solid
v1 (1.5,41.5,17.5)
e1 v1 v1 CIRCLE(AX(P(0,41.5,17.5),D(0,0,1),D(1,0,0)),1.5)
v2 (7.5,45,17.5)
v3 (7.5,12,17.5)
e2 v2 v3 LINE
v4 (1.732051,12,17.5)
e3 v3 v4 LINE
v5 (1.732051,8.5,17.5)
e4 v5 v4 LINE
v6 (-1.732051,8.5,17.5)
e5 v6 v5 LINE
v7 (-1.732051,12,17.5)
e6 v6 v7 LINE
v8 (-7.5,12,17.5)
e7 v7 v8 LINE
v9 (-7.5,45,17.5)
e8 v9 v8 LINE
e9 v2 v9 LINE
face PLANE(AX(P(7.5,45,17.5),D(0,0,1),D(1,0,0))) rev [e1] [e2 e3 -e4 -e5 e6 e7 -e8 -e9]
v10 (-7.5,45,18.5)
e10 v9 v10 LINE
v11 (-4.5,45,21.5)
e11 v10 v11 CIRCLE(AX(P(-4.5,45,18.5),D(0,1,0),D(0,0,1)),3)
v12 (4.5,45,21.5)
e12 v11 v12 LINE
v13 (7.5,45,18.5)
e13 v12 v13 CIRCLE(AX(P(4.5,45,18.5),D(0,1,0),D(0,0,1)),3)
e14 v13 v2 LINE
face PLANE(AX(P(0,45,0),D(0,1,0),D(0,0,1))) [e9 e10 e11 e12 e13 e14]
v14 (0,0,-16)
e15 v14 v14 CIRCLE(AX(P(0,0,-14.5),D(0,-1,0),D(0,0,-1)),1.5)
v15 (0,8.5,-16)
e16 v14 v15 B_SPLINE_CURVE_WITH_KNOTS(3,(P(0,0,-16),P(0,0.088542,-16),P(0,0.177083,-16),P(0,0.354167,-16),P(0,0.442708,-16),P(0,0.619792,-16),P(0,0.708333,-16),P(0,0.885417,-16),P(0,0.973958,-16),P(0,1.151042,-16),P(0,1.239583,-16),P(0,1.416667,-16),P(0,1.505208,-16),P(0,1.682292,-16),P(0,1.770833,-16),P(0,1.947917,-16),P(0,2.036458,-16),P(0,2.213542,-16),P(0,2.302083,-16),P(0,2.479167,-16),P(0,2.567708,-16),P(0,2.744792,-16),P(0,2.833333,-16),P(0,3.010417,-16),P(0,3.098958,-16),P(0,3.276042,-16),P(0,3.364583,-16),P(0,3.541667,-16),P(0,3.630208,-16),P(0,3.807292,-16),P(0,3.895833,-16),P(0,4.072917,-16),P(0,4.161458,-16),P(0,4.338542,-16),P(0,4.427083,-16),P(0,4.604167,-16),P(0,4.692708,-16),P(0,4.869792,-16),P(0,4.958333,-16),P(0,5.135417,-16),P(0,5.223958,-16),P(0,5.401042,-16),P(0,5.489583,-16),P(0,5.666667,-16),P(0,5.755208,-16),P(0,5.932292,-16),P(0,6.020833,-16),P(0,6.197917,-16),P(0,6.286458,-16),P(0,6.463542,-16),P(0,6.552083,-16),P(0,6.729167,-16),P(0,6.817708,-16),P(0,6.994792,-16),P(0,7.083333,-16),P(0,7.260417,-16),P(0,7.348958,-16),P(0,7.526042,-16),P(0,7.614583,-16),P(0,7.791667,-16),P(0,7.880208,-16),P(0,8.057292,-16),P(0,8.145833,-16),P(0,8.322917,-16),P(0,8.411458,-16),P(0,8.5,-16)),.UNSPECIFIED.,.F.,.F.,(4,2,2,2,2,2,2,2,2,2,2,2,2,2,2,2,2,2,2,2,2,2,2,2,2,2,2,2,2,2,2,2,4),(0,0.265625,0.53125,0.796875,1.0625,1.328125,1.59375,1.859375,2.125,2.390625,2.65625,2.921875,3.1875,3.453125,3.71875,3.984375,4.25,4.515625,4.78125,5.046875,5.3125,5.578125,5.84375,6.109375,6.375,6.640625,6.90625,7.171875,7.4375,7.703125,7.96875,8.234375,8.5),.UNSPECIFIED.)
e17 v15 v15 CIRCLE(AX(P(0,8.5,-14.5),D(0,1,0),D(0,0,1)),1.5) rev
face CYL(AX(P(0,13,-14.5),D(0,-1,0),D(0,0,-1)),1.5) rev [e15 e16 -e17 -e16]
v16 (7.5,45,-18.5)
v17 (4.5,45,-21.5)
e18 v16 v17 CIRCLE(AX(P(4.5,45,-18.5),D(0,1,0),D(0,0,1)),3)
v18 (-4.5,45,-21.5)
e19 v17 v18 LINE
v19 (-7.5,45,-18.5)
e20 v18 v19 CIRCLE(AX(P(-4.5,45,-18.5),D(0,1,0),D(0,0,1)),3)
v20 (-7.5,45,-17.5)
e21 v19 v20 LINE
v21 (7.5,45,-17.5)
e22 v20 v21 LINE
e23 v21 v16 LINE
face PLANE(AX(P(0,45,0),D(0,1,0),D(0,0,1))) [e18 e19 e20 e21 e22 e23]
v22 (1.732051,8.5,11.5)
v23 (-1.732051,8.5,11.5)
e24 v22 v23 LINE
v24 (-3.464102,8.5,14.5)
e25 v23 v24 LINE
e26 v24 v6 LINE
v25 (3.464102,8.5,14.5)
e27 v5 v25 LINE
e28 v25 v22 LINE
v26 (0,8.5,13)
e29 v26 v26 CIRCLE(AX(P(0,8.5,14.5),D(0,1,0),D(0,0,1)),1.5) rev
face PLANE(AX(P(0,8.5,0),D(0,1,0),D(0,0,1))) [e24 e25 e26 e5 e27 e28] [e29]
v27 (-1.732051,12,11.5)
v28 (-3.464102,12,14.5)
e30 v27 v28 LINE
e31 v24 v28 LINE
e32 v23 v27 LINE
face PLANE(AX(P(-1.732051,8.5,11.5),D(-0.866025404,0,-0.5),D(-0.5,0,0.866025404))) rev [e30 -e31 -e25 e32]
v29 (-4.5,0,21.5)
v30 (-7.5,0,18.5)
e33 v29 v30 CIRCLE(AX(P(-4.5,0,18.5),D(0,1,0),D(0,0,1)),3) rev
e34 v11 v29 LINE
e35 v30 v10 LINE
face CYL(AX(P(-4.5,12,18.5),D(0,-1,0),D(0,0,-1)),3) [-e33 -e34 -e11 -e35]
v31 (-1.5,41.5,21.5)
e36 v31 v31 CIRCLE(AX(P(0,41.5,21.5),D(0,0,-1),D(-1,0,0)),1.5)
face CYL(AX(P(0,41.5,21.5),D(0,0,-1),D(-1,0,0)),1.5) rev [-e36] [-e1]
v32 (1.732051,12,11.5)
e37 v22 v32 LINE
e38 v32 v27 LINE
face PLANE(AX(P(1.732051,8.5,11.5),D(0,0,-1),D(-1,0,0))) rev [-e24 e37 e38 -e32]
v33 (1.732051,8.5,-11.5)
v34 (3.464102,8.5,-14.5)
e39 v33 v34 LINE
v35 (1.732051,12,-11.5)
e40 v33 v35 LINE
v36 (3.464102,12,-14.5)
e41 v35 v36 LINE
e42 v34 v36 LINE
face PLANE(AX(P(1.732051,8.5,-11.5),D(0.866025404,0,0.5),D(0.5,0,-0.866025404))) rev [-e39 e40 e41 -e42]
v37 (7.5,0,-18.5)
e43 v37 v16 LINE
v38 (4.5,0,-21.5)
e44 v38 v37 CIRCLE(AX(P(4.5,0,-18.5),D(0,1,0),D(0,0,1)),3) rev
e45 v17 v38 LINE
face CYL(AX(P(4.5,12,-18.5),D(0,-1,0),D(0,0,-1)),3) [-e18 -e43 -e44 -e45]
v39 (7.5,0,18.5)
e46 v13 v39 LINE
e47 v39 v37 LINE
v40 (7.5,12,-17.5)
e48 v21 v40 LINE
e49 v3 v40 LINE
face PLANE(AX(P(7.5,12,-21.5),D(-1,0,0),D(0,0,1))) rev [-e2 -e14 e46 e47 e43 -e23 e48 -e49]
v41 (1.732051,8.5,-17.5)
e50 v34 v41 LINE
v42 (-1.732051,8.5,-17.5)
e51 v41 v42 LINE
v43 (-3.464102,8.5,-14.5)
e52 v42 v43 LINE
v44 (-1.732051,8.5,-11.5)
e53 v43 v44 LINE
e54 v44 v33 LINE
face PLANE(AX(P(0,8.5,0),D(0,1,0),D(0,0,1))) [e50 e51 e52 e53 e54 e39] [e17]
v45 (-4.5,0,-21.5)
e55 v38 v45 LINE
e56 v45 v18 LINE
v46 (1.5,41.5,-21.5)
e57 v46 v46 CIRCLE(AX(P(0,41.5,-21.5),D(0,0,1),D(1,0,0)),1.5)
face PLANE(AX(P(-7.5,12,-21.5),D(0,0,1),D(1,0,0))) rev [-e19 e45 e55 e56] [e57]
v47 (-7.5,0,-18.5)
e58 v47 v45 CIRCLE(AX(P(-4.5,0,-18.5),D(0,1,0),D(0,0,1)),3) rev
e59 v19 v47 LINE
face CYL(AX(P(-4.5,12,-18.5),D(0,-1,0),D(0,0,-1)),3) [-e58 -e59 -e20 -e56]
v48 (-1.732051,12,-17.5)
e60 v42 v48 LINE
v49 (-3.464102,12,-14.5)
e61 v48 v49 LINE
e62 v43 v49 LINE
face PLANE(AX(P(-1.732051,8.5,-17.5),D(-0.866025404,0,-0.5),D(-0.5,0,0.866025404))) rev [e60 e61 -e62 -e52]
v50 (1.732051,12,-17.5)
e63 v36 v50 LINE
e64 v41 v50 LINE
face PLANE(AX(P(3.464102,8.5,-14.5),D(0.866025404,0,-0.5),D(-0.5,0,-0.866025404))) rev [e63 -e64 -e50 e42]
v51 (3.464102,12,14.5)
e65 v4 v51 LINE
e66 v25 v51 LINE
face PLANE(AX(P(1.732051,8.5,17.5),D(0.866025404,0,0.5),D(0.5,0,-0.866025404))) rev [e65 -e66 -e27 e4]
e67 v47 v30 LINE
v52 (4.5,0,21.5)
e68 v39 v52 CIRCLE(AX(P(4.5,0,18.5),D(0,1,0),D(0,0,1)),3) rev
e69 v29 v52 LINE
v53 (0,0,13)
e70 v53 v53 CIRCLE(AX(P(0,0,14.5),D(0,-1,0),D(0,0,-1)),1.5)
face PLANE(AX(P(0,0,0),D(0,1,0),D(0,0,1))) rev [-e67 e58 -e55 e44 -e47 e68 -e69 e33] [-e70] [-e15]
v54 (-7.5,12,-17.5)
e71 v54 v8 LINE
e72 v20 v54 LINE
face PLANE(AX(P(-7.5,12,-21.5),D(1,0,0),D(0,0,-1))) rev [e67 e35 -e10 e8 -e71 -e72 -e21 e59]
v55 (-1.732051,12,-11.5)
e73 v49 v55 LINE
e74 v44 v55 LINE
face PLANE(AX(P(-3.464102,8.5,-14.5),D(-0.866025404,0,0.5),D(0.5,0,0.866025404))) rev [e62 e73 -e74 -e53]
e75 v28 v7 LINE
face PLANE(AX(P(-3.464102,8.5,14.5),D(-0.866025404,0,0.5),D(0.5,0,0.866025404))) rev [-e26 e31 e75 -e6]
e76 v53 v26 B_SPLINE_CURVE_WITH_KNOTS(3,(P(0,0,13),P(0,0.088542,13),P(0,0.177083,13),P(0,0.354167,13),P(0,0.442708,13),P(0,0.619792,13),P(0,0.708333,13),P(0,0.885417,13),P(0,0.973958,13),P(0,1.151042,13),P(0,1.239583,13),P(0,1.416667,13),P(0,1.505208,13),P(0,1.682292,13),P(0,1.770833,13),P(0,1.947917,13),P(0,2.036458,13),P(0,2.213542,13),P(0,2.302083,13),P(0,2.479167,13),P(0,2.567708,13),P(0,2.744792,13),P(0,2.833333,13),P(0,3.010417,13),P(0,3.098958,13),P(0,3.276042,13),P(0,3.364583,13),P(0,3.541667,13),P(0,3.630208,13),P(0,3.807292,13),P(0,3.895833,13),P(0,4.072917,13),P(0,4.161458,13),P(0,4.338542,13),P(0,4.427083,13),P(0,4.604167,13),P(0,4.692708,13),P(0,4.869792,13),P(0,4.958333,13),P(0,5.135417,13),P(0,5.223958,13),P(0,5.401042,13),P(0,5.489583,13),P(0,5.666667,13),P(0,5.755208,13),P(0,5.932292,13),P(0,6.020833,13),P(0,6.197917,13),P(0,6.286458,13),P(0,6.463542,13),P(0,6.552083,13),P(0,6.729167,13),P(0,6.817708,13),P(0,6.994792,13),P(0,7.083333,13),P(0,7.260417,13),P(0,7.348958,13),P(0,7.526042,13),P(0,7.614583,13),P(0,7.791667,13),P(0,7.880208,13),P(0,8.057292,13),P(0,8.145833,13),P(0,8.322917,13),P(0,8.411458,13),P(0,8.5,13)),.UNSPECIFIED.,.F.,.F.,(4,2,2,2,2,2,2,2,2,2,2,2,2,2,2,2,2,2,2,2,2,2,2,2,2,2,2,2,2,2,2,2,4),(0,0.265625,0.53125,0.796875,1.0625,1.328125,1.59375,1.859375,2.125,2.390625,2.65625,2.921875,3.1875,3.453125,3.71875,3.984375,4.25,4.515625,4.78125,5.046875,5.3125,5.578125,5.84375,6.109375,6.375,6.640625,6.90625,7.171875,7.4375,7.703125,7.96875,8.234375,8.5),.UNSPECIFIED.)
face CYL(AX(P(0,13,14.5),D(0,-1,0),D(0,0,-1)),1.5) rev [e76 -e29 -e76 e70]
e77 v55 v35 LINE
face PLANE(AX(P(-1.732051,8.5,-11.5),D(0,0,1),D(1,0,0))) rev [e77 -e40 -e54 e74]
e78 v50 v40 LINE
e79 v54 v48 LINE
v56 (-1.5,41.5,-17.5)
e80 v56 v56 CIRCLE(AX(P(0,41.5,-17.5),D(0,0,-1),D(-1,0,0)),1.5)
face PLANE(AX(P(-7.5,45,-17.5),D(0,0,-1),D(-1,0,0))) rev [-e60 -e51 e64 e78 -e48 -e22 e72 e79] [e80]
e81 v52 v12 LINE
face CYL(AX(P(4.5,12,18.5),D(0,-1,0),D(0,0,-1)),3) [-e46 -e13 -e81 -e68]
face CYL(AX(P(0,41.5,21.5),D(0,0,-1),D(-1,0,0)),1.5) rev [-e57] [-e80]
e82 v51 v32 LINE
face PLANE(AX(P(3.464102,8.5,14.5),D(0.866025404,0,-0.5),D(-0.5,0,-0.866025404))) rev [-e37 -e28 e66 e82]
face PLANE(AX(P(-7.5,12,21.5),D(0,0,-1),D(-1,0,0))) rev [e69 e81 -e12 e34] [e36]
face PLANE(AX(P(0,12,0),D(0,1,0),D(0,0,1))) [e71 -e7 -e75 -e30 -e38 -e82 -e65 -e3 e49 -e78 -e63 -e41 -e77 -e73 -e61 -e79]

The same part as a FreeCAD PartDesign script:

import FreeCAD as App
import Part
import Sketcher

V = App.Vector
Q = App.Units.Quantity


def edges_at(feature, points):
    """Names of the edges that pass closest to the given points."""
    edges = feature.Shape.Edges
    near = lambda p: min(range(len(edges)), key=lambda i: edges[i].distToShape(Part.Vertex(*p))[0])
    return sorted({f"Edge{near(p) + 1}" for p in points})


def add_polygon(sketch, points):
    """Adds a closed chain of lines whose ends are joined by coincident constraints."""
    first, n = sketch.GeometryCount, len(points)
    for a, b in zip(points, points[1:] + points[:1]):
        sketch.addGeometry(Part.LineSegment(App.Vector(*a, 0), App.Vector(*b, 0)), False)
    for i in range(n):
        sketch.addConstraint(Sketcher.Constraint("Coincident", first + i, 2, first + (i + 1) % n, 1))

doc = App.newDocument("Part")
params = doc.addObject("Spreadsheet::Sheet", "Params")
for row, (alias, value) in enumerate([
    ("sketch1_width", "15 mm"),
    ("sketch1_height", "43 mm"),
    ("pad1_length", "12 mm"),
    ("sketch2_width", "15 mm"),
    ("sketch2_height", "4 mm"),
    ("pad2_length", "33 mm"),
    ("sketch3_diameter", "3 mm"),
    ("pocket1_length", "13 mm"),
    ("pocket2_length", "3.5 mm"),
    ("fillet_radius", "3 mm"),
    ("sketch5_diameter", "3 mm"),
], start=1):
    params.set(f"A{row}", alias)
    params.set(f"B{row}", "=" + value)
    params.setAlias(f"B{row}", alias)

body = doc.addObject("PartDesign::Body", "Body")

sketch1 = body.newObject("Sketcher::SketchObject", "Sketch")
sketch1.AttachmentSupport = (doc.getObject("XZ_Plane"), [""])
sketch1.MapMode = "FlatFace"
add_polygon(sketch1, [(-8, -22), (-8, 22), (8, 22), (8, -22)])
sketch1.addConstraint(Sketcher.Constraint("Vertical", 0))
sketch1.addConstraint(Sketcher.Constraint("Horizontal", 1))
sketch1.addConstraint(Sketcher.Constraint("Vertical", 2))
sketch1.addConstraint(Sketcher.Constraint("Horizontal", 3))
sketch1.addConstraint(Sketcher.Constraint("Symmetric", 0, 2, 2, 2, -1, 1))
sketch1.addConstraint(Sketcher.Constraint("DistanceX", 1, 1, 1, 2, 15.0))
sketch1.addConstraint(Sketcher.Constraint("DistanceY", 0, 1, 0, 2, 43.0))
sketch1.setExpression("Constraints[9]", "Params.sketch1_width")
sketch1.setExpression("Constraints[10]", "Params.sketch1_height")
pad1 = body.newObject("PartDesign::Pad", "Pad")
pad1.Profile = sketch1
pad1.setExpression("Length", "Params.pad1_length")
pad1.Reversed = True

sketch2 = body.newObject("Sketcher::SketchObject", "Sketch001")
sketch2.AttachmentSupport = (doc.getObject("XZ_Plane"), [""])
sketch2.MapMode = "FlatFace"
sketch2.AttachmentOffset = App.Placement(V(0, 0, -12), App.Rotation())
add_polygon(sketch2, [(-7.5, -21.5), (-7.5, -17.5), (7.5, -17.5), (7.5, -21.5)])
add_polygon(sketch2, [(-7.5, 17.5), (-7.5, 21.5), (7.5, 21.5), (7.5, 17.5)])
sketch2.addConstraint(Sketcher.Constraint("Vertical", 0))
sketch2.addConstraint(Sketcher.Constraint("Horizontal", 1))
sketch2.addConstraint(Sketcher.Constraint("Vertical", 2))
sketch2.addConstraint(Sketcher.Constraint("Horizontal", 3))
sketch2.addConstraint(Sketcher.Constraint("Vertical", 4))
sketch2.addConstraint(Sketcher.Constraint("Horizontal", 5))
sketch2.addConstraint(Sketcher.Constraint("Vertical", 6))
sketch2.addConstraint(Sketcher.Constraint("Horizontal", 7))
sketch2.addConstraint(Sketcher.Constraint("Symmetric", 2, 2, 4, 2, -1, 1))
sketch2.addConstraint(Sketcher.Constraint("Symmetric", 0, 2, 6, 2, -1, 1))
sketch2.addConstraint(Sketcher.Constraint("Vertical", 3, 2, 4, 2))
sketch2.addConstraint(Sketcher.Constraint("DistanceX", 1, 1, 1, 2, 15.0))
sketch2.addConstraint(Sketcher.Constraint("DistanceY", 0, 1, 0, 2, 4.0))
sketch2.addConstraint(Sketcher.Constraint("DistanceY", 0, 2, 4, 2, 39.0))
sketch2.setExpression("Constraints[19]", "Params.sketch2_width")
sketch2.setExpression("Constraints[20]", "Params.sketch2_height")
pad2 = body.newObject("PartDesign::Pad", "Pad001")
pad2.Profile = sketch2
pad2.setExpression("Length", "Params.pad2_length")
pad2.Reversed = True

sketch3 = body.newObject("Sketcher::SketchObject", "Sketch002")
sketch3.AttachmentSupport = (doc.getObject("XZ_Plane"), [""])
sketch3.MapMode = "FlatFace"
sketch3.addGeometry(Part.Circle(V(0, 14.5, 0), V(0, 0, 1), 1.5), False)
sketch3.addGeometry(Part.Circle(V(0, -14.5, 0), V(0, 0, 1), 1.5), False)
sketch3.addConstraint(Sketcher.Constraint("Equal", 0, 1))
sketch3.addConstraint(Sketcher.Constraint("Symmetric", 0, 3, 1, 3, -1, 1))
sketch3.addConstraint(Sketcher.Constraint("PointOnObject", 0, 3, -2))
sketch3.addConstraint(Sketcher.Constraint("Diameter", 0, 3.0))
sketch3.addConstraint(Sketcher.Constraint("DistanceY", 1, 3, 0, 3, 29.0))
sketch3.setExpression("Constraints[3]", "Params.sketch3_diameter")
pocket1 = body.newObject("PartDesign::Pocket", "Pocket")
pocket1.Profile = sketch3
pocket1.setExpression("Length", "Params.pocket1_length")

sketch4 = body.newObject("Sketcher::SketchObject", "Sketch003")
sketch4.AttachmentSupport = (doc.getObject("XZ_Plane"), [""])
sketch4.MapMode = "FlatFace"
sketch4.AttachmentOffset = App.Placement(V(0, 0, -12), App.Rotation())
add_polygon(sketch4, [(3.5, -14.5), (1.7, -17.5), (-1.7, -17.5), (-3.5, -14.5), (-1.7, -11.5), (1.7, -11.5)])
add_polygon(sketch4, [(3.5, 14.5), (1.7, 11.5), (-1.7, 11.5), (-3.5, 14.5), (-1.7, 17.5), (1.7, 17.5)])
sketch4.addConstraint(Sketcher.Constraint("Horizontal", 1))
sketch4.addConstraint(Sketcher.Constraint("Horizontal", 4))
sketch4.addConstraint(Sketcher.Constraint("Horizontal", 7))
sketch4.addConstraint(Sketcher.Constraint("Horizontal", 10))
sketch4.addConstraint(Sketcher.Constraint("Symmetric", 3, 2, 6, 2, -1, 1))
sketch4.addConstraint(Sketcher.Constraint("Symmetric", 5, 2, 8, 2, -1, 1))
sketch4.addConstraint(Sketcher.Constraint("Symmetric", 0, 2, 9, 2, -1, 1))
sketch4.addConstraint(Sketcher.Constraint("Symmetric", 2, 2, 11, 2, -1, 1))
sketch4.addConstraint(Sketcher.Constraint("Symmetric", 2, 2, 5, 2, -2))
sketch4.addConstraint(Sketcher.Constraint("Parallel", 0, 3))
sketch4.addConstraint(Sketcher.Constraint("Parallel", 2, 5))
sketch4.addConstraint(Sketcher.Constraint("Parallel", 5, 8))
sketch4.addConstraint(Sketcher.Constraint("Parallel", 8, 11))
sketch4.addConstraint(Sketcher.Constraint("Vertical", 1, 2, 3, 2))
sketch4.addConstraint(Sketcher.Constraint("Vertical", 0, 2, 4, 2))
sketch4.addConstraint(Sketcher.Constraint("Angle", 0, Q("-120 deg")))
sketch4.addConstraint(Sketcher.Constraint("DistanceY", 1, 2, 2, 2, 3.0))
sketch4.addConstraint(Sketcher.Constraint("DistanceY", 4, 2, 6, 2, 23.0))
sketch4.addConstraint(Sketcher.Constraint("DistanceX", 1, 2, 1, 1, 3.464102))
pocket2 = body.newObject("PartDesign::Pocket", "Pocket001")
pocket2.Profile = sketch4
pocket2.setExpression("Length", "Params.pocket2_length")
pocket2.Reversed = True
doc.recompute()

fillet = body.newObject("PartDesign::Fillet", "Fillet")
fillet.Base = (pocket2, edges_at(pocket2, [
    (-7.5, 22.5, -21.5),
    (7.5, 22.5, -21.5),
    (7.5, 22.5, 21.5),
    (-7.5, 22.5, 21.5),
]))
fillet.setExpression("Radius", "Params.fillet_radius")

sketch5 = body.newObject("Sketcher::SketchObject", "Sketch004")
sketch5.AttachmentSupport = (doc.getObject("XY_Plane"), [""])
sketch5.MapMode = "FlatFace"
sketch5.AttachmentOffset = App.Placement(V(0, 0, -21.5), App.Rotation())
sketch5.addGeometry(Part.Circle(V(0, 41.5, 0), V(0, 0, 1), 1.5), False)
sketch5.addConstraint(Sketcher.Constraint("PointOnObject", 0, 3, -2))
sketch5.addConstraint(Sketcher.Constraint("Diameter", 0, 3.0))
sketch5.addConstraint(Sketcher.Constraint("DistanceY", -1, 1, 0, 3, 41.5))
sketch5.setExpression("Constraints[1]", "Params.sketch5_diameter")
pocket3 = body.newObject("PartDesign::Pocket", "Pocket002")
pocket3.Profile = sketch5
pocket3.Type = "ThroughAll"
pocket3.Midplane = True

doc.recompute()
